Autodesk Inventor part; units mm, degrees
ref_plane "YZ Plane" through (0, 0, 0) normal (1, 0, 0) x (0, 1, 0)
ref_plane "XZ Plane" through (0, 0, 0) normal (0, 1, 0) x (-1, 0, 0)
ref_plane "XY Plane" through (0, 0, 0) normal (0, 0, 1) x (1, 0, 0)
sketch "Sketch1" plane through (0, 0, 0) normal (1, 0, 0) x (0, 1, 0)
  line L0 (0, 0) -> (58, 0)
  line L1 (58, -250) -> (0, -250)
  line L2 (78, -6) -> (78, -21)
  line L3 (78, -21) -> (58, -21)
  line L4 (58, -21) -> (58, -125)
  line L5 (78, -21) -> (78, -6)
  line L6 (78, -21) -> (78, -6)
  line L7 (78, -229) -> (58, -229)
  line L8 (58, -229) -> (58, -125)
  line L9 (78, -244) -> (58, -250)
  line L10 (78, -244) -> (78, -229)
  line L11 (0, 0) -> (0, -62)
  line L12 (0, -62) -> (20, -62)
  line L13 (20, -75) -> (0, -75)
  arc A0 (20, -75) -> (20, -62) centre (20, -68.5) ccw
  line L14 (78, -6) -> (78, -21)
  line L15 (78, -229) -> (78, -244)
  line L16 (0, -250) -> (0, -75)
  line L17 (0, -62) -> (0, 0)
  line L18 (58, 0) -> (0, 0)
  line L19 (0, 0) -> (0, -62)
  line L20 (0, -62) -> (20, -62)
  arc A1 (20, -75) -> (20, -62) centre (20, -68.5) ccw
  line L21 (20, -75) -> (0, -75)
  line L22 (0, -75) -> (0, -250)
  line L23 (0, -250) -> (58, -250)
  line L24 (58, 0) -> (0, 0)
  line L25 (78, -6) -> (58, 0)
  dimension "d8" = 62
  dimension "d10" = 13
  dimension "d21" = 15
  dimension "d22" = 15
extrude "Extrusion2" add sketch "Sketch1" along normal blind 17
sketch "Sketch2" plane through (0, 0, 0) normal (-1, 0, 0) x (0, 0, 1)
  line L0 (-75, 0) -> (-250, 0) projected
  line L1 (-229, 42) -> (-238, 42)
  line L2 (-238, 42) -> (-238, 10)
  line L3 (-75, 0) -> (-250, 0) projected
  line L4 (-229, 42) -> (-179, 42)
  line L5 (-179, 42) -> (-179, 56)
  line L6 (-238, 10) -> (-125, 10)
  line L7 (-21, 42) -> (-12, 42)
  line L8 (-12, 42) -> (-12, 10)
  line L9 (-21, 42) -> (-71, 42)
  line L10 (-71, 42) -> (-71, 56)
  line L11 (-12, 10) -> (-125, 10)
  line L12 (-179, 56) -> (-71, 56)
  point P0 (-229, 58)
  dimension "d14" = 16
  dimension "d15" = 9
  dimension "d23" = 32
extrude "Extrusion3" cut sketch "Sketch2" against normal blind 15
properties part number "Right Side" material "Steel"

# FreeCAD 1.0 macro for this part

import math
import FreeCAD as App
import Part
import Sketcher
from FreeCAD import Vector


def add_polygon(sketch, points):
    """Adds a closed chain of lines whose ends are joined by coincident constraints."""
    first, n = sketch.GeometryCount, len(points)
    for a, b in zip(points, points[1:] + points[:1]):
        sketch.addGeometry(Part.LineSegment(App.Vector(*a, 0), App.Vector(*b, 0)), False)
    for i in range(n):
        sketch.addConstraint(Sketcher.Constraint("Coincident", first + i, 2, first + (i + 1) % n, 1))

doc = App.newDocument("Part")
body = doc.addObject("PartDesign::Body", "Body")

# Sketch on YZ plane
sketch1 = body.newObject("Sketcher::SketchObject", "Sketch")
sketch1.AttachmentSupport = (doc.getObject("YZ_Plane"), [""])
sketch1.MapMode = "FlatFace"
sketch1.addGeometry([
    Part.LineSegment(Vector(58, 0, 0), Vector(0, 0, 0)),  # 0
    Part.LineSegment(Vector(0, 0, 0), Vector(0, -62, 0)),  # 1
    Part.LineSegment(Vector(0, -62, 0), Vector(20, -62, 0)),  # 2
    Part.ArcOfCircle(Part.Circle(Vector(20, -68, 0), Vector(0, 0, 1), 6), math.radians(-90), math.radians(90)),  # 3
    Part.LineSegment(Vector(20, -75, 0), Vector(0, -75, 0)),  # 4
    Part.LineSegment(Vector(0, -75, 0), Vector(0, -250, 0)),  # 5
    Part.LineSegment(Vector(0, -250, 0), Vector(58, -250, 0)),  # 6
    Part.LineSegment(Vector(58, -250, 0), Vector(78, -244, 0)),  # 7
    Part.LineSegment(Vector(78, -244, 0), Vector(78, -229, 0)),  # 8
    Part.LineSegment(Vector(78, -229, 0), Vector(58, -229, 0)),  # 9
    Part.LineSegment(Vector(58, -229, 0), Vector(58, -21, 0)),  # 10
    Part.LineSegment(Vector(58, -21, 0), Vector(78, -21, 0)),  # 11
    Part.LineSegment(Vector(78, -21, 0), Vector(78, -6, 0)),  # 12
    Part.LineSegment(Vector(78, -6, 0), Vector(58, 0, 0)),  # 13
], False)
sketch1.addConstraint([
    Sketcher.Constraint("Coincident", 0, 2, 1, 1),
    Sketcher.Constraint("Coincident", 1, 2, 2, 1),
    Sketcher.Constraint("Tangent", 2, 2, 3, 2),
    Sketcher.Constraint("Tangent", 3, 1, 4, 1),
    Sketcher.Constraint("Coincident", 4, 2, 5, 1),
    Sketcher.Constraint("Coincident", 5, 2, 6, 1),
    Sketcher.Constraint("Coincident", 6, 2, 7, 1),
    Sketcher.Constraint("Coincident", 7, 2, 8, 1),
    Sketcher.Constraint("Coincident", 8, 2, 9, 1),
    Sketcher.Constraint("Coincident", 9, 2, 10, 1),
    Sketcher.Constraint("Coincident", 10, 2, 11, 1),
    Sketcher.Constraint("Coincident", 11, 2, 12, 1),
    Sketcher.Constraint("Coincident", 12, 2, 13, 1),
    Sketcher.Constraint("Coincident", 13, 2, 0, 1),
    Sketcher.Constraint("Horizontal", 0),
    Sketcher.Constraint("Vertical", 1),
    Sketcher.Constraint("Horizontal", 2),
    Sketcher.Constraint("Horizontal", 4),
    Sketcher.Constraint("Vertical", 5),
    Sketcher.Constraint("Horizontal", 6),
    Sketcher.Constraint("Vertical", 8),
    Sketcher.Constraint("Horizontal", 9),
    Sketcher.Constraint("Vertical", 10),
    Sketcher.Constraint("Horizontal", 11),
    Sketcher.Constraint("Vertical", 12),
    Sketcher.Constraint("Coincident", 0, 2, -1, 1),
    Sketcher.Constraint("PointOnObject", 4, 2, -2),
    Sketcher.Constraint("Vertical", 6, 2, 9, 2),
    Sketcher.Constraint("Vertical", 8, 2, 11, 2),
    Sketcher.Constraint("Vertical", 10, 2, 13, 2),
    Sketcher.Constraint("Equal", 4, 9),
    Sketcher.Constraint("Equal", 8, 12),
    Sketcher.Constraint("Equal", 7, 13),
    Sketcher.Constraint("Radius", 3, 6.5),
    Sketcher.Constraint("DistanceY", 1, 2, 1, 1, 62.0),
    Sketcher.Constraint("DistanceY", 8, 1, 8, 2, 15.0),
    Sketcher.Constraint("DistanceX", 0, 2, 0, 1, 58.0),
    Sketcher.Constraint("DistanceX", 2, 1, 2, 2, 20.0),
    Sketcher.Constraint("DistanceY", 5, 2, 5, 1, 175.0),
    Sketcher.Constraint("DistanceY", 10, 1, 10, 2, 208.0),
])
pad1 = body.newObject("PartDesign::Pad", "Pad")
pad1.Profile = sketch1
pad1.Length = 17

# Sketch on YZ plane
sketch2 = body.newObject("Sketcher::SketchObject", "Sketch001")
sketch2.AttachmentSupport = (doc.getObject("YZ_Plane"), [""])
sketch2.MapMode = "FlatFace"
add_polygon(sketch2, [(42, -179), (42, -238), (10, -238), (10, -12), (42, -12), (42, -71), (56, -71), (56, -179)])  # lines 0-7
sketch2.addConstraint([
    Sketcher.Constraint("Vertical", 0),
    Sketcher.Constraint("Horizontal", 1),
    Sketcher.Constraint("Vertical", 2),
    Sketcher.Constraint("Horizontal", 3),
    Sketcher.Constraint("Vertical", 4),
    Sketcher.Constraint("Horizontal", 5),
    Sketcher.Constraint("Vertical", 6),
    Sketcher.Constraint("Horizontal", 7),
    Sketcher.Constraint("Vertical", 0, 2, 3, 2),
    Sketcher.Constraint("Equal", 0, 4),
    Sketcher.Constraint("DistanceX", 1, 2, 1, 1, 32.0),
    Sketcher.Constraint("DistanceX", 5, 1, 5, 2, 14.0),
    Sketcher.Constraint("DistanceY", 0, 2, 0, 1, 59.0),
    Sketcher.Constraint("DistanceY", 2, 1, 2, 2, 226.0),
    Sketcher.Constraint("DistanceX", -1, 1, 0, 2, 42.0),
    Sketcher.Constraint("DistanceY", 0, 2, -1, 1, 238.0),
])
pocket1 = body.newObject("PartDesign::Pocket", "Pocket")
pocket1.Profile = sketch2
pocket1.Length = 15
pocket1.Reversed = True

doc.recompute()
